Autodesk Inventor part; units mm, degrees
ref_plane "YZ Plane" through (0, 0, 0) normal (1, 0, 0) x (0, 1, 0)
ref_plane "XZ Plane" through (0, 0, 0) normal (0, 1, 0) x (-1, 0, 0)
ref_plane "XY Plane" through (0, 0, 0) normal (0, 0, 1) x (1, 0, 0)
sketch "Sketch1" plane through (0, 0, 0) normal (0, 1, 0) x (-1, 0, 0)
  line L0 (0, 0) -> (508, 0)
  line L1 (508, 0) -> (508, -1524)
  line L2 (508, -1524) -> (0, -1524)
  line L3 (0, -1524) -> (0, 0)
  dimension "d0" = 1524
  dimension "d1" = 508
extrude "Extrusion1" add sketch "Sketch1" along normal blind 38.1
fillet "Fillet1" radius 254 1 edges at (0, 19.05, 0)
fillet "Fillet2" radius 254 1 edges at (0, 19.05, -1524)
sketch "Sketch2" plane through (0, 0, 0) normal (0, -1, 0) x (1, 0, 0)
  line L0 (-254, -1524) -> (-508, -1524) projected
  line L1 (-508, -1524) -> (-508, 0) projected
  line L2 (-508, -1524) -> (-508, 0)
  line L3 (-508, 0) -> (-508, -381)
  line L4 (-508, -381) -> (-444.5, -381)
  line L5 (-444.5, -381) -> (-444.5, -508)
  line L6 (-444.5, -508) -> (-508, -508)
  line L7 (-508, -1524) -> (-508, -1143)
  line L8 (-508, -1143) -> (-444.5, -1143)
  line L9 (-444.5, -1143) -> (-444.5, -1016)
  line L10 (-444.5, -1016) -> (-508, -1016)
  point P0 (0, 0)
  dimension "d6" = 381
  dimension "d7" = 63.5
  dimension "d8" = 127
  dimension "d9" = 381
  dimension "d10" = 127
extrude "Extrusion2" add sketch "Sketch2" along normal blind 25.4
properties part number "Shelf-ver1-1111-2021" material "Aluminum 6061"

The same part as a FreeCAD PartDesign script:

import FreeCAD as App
import Part
import Sketcher
from FreeCAD import Vector
Q = App.Units.Quantity


def edges_at(feature, points):
    """Names of the edges that pass closest to the given points."""
    edges = feature.Shape.Edges
    near = lambda p: min(range(len(edges)), key=lambda i: edges[i].distToShape(Part.Vertex(*p))[0])
    return sorted({f"Edge{near(p) + 1}" for p in points})


def add_polygon(sketch, points):
    """Adds a closed chain of lines whose ends are joined by coincident constraints."""
    first, n = sketch.GeometryCount, len(points)
    for a, b in zip(points, points[1:] + points[:1]):
        sketch.addGeometry(Part.LineSegment(App.Vector(*a, 0), App.Vector(*b, 0)), False)
    for i in range(n):
        sketch.addConstraint(Sketcher.Constraint("Coincident", first + i, 2, first + (i + 1) % n, 1))

doc = App.newDocument("Part")
params = doc.addObject("Spreadsheet::Sheet", "Params")
for row, (alias, value) in enumerate([
    ("sketch1_width", "20 in"),
    ("sketch1_height", "60 in"),
    ("pad1_length", "1.5 in"),
    ("fillet_radius", "10 in"),
    ("fillet2_radius", "10 in"),
    ("sketch2_height", "5 in"),
    ("sketch2_width", "2.5 in"),
    ("pad2_length", "1 in"),
], start=1):
    params.set(f"A{row}", alias)
    params.set(f"B{row}", "=" + value)
    params.setAlias(f"B{row}", alias)

body = doc.addObject("PartDesign::Body", "Body")

# Sketch on XZ plane
sketch1 = body.newObject("Sketcher::SketchObject", "Sketch")
sketch1.AttachmentSupport = (doc.getObject("XZ_Plane"), [""])
sketch1.MapMode = "FlatFace"
add_polygon(sketch1, [(-508, 0), (0, 0), (0, -1524), (-508, -1524)])  # lines 0-3
sketch1.addConstraint([
    Sketcher.Constraint("Horizontal", 0),
    Sketcher.Constraint("Vertical", 1),
    Sketcher.Constraint("Horizontal", 2),
    Sketcher.Constraint("Vertical", 3),
    Sketcher.Constraint("Coincident", 0, 2, -1, 1),
    Sketcher.Constraint("DistanceX", 0, 1, 0, 2, Q("20 in")),
    Sketcher.Constraint("DistanceY", 1, 2, 1, 1, Q("60 in")),
])
sketch1.setExpression("Constraints[9]", "Params.sketch1_width")
sketch1.setExpression("Constraints[10]", "Params.sketch1_height")
pad1 = body.newObject("PartDesign::Pad", "Pad")
pad1.Profile = sketch1
pad1.setExpression("Length", "Params.pad1_length")
pad1.Reversed = True
doc.recompute()

fillet = body.newObject("PartDesign::Fillet", "Fillet")
fillet.Base = (pad1, edges_at(pad1, [(0, 19.05, 0)]))
fillet.setExpression("Radius", "Params.fillet_radius")
doc.recompute()

fillet2 = body.newObject("PartDesign::Fillet", "Fillet001")
fillet2.Base = (fillet, edges_at(fillet, [(0, 19.05, -1524)]))
fillet2.setExpression("Radius", "Params.fillet2_radius")

# Sketch on XZ plane
sketch2 = body.newObject("Sketcher::SketchObject", "Sketch001")
sketch2.AttachmentSupport = (doc.getObject("XZ_Plane"), [""])
sketch2.MapMode = "FlatFace"
add_polygon(sketch2, [(-508, -381), (-508, -508), (-444.5, -508), (-444.5, -381)])  # lines 0-3
add_polygon(sketch2, [(-508, -1016), (-508, -1143), (-444.5, -1143), (-444.5, -1016)])  # lines 4-7
sketch2.addConstraint([
    Sketcher.Constraint("Vertical", 0),
    Sketcher.Constraint("Horizontal", 1),
    Sketcher.Constraint("Vertical", 2),
    Sketcher.Constraint("Horizontal", 3),
    Sketcher.Constraint("Vertical", 4),
    Sketcher.Constraint("Horizontal", 5),
    Sketcher.Constraint("Vertical", 6),
    Sketcher.Constraint("Horizontal", 7),
    Sketcher.Constraint("Vertical", 3, 2, 4, 2),
    Sketcher.Constraint("Vertical", 2, 2, 5, 2),
    Sketcher.Constraint("Equal", 2, 4),
    Sketcher.Constraint("DistanceY", 0, 2, 0, 1, Q("5 in")),
    Sketcher.Constraint("DistanceX", 1, 1, 1, 2, Q("2.5 in")),
    Sketcher.Constraint("DistanceY", 2, 2, -1, 1, Q("15 in")),
    Sketcher.Constraint("DistanceX", 0, 2, -1, 1, Q("20 in")),
    Sketcher.Constraint("DistanceY", 4, 2, -1, 1, Q("45 in")),
])
sketch2.setExpression("Constraints[19]", "Params.sketch2_height")
sketch2.setExpression("Constraints[20]", "Params.sketch2_width")
pad2 = body.newObject("PartDesign::Pad", "Pad001")
pad2.Profile = sketch2
pad2.setExpression("Length", "Params.pad2_length")

doc.recompute()
